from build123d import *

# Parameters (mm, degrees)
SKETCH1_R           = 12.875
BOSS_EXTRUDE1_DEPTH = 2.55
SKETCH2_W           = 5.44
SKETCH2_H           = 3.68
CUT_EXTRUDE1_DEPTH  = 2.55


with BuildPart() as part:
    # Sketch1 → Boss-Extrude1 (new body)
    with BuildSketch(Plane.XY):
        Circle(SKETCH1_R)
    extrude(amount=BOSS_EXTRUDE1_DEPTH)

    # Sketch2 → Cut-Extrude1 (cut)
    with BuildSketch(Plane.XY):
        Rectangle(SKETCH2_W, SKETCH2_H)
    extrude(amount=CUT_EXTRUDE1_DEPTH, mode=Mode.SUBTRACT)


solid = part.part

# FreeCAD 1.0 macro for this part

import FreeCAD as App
import Part
import Sketcher


def add_polygon(sketch, points):
    """Adds a closed chain of lines whose ends are joined by coincident constraints."""
    first, n = sketch.GeometryCount, len(points)
    for a, b in zip(points, points[1:] + points[:1]):
        sketch.addGeometry(Part.LineSegment(App.Vector(*a, 0), App.Vector(*b, 0)), False)
    for i in range(n):
        sketch.addConstraint(Sketcher.Constraint("Coincident", first + i, 2, first + (i + 1) % n, 1))

doc = App.newDocument("Part")
params = doc.addObject("Spreadsheet::Sheet", "Params")
for row, (alias, value) in enumerate([
    ("sketch1_diameter", "25.75 mm"),
    ("pad1_length", "2.55 mm"),
    ("sketch2_width", "5.44 mm"),
    ("sketch2_height", "3.68 mm"),
    ("pocket1_length", "2.55 mm"),
], start=1):
    params.set(f"A{row}", alias)
    params.set(f"B{row}", "=" + value)
    params.setAlias(f"B{row}", alias)

body = doc.addObject("PartDesign::Body", "Body")

# Sketch on XY plane
sketch1 = body.newObject("Sketcher::SketchObject", "Sketch")
sketch1.AttachmentSupport = (doc.getObject("XY_Plane"), [""])
sketch1.MapMode = "FlatFace"
sketch1.addGeometry(Part.Circle(App.Vector(0, 0, 0), App.Vector(0, 0, 1), 13), False)
sketch1.addConstraint([
    Sketcher.Constraint("Coincident", 0, 3, -1, 1),
    Sketcher.Constraint("Diameter", 0, 25.75),
])
sketch1.setExpression("Constraints[1]", "Params.sketch1_diameter")
pad1 = body.newObject("PartDesign::Pad", "Pad")
pad1.Profile = sketch1
pad1.setExpression("Length", "Params.pad1_length")

# Sketch on XY plane
sketch2 = body.newObject("Sketcher::SketchObject", "Sketch001")
sketch2.AttachmentSupport = (doc.getObject("XY_Plane"), [""])
sketch2.MapMode = "FlatFace"
add_polygon(sketch2, [(-2.7, 1.8), (-2.7, -1.8), (2.7, -1.8), (2.7, 1.8)])  # lines 0-3
sketch2.addConstraint([
    Sketcher.Constraint("Vertical", 0),
    Sketcher.Constraint("Horizontal", 1),
    Sketcher.Constraint("Vertical", 2),
    Sketcher.Constraint("Horizontal", 3),
    Sketcher.Constraint("Symmetric", 0, 2, 2, 2, -1, 1),
    Sketcher.Constraint("DistanceX", 1, 1, 1, 2, 5.44),
    Sketcher.Constraint("DistanceY", 0, 2, 0, 1, 3.68),
])
sketch2.setExpression("Constraints[9]", "Params.sketch2_width")
sketch2.setExpression("Constraints[10]", "Params.sketch2_height")
pocket1 = body.newObject("PartDesign::Pocket", "Pocket")
pocket1.Profile = sketch2
pocket1.setExpression("Length", "Params.pocket1_length")
pocket1.Reversed = True

doc.recompute()
